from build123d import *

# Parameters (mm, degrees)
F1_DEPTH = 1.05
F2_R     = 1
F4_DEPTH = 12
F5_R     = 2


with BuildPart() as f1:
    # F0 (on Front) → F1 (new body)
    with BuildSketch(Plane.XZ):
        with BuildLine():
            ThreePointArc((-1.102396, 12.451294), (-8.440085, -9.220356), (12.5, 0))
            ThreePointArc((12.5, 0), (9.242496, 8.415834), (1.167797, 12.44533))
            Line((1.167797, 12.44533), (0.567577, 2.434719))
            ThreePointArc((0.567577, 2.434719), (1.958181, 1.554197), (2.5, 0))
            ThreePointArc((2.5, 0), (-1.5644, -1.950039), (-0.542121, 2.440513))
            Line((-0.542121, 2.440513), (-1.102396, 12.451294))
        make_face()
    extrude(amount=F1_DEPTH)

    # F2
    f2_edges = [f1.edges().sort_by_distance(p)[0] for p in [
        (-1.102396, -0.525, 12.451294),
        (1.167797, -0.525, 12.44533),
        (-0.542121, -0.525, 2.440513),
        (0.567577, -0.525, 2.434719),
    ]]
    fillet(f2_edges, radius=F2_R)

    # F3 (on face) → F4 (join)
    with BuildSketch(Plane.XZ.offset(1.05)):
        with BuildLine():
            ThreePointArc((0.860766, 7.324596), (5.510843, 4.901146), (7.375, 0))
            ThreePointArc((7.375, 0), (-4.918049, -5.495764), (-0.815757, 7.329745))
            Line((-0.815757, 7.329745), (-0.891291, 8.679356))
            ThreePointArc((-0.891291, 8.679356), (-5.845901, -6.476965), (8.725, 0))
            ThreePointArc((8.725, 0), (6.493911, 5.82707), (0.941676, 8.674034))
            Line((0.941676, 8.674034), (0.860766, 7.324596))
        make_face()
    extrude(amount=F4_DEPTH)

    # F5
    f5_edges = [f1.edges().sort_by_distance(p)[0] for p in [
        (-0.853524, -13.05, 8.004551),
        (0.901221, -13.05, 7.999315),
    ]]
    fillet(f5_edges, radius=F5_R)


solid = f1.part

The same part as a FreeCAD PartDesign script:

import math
import FreeCAD as App
import Part
import Sketcher
from FreeCAD import Vector
Q = App.Units.Quantity


def edges_at(feature, points):
    """Names of the edges that pass closest to the given points."""
    edges = feature.Shape.Edges
    near = lambda p: min(range(len(edges)), key=lambda i: edges[i].distToShape(Part.Vertex(*p))[0])
    return sorted({f"Edge{near(p) + 1}" for p in points})

doc = App.newDocument("Part")
body = doc.addObject("PartDesign::Body", "Body")

sketch1 = body.newObject("Sketcher::SketchObject", "Sketch")
sketch1.AttachmentSupport = (doc.getObject("XZ_Plane"), [""])
sketch1.MapMode = "FlatFace"
sketch1.addGeometry([
    Part.ArcOfCircle(Part.Circle(Vector(0, 0, 0), Vector(0, 0, 1), 12.5), math.radians(95), math.radians(360)),
    Part.ArcOfCircle(Part.Circle(Vector(0, 0, 0), Vector(0, 0, 1), 12.5), math.radians(0), math.radians(85)),
    Part.LineSegment(Vector(1.2, 12.4, 0), Vector(0.6, 2.4, 0)),
    Part.ArcOfCircle(Part.Circle(Vector(0, 0, 0), Vector(0, 0, 1), 2.5), math.radians(0), math.radians(77)),
    Part.ArcOfCircle(Part.Circle(Vector(0, 0, 0), Vector(0, 0, 1), 2.5), math.radians(103), math.radians(360)),
    Part.LineSegment(Vector(-0.5, 2.4, 0), Vector(-1.1, 12.5, 0)),
], False)
sketch1.addConstraint([
    Sketcher.Constraint("Tangent", 0, 2, 1, 1),
    Sketcher.Constraint("Coincident", 1, 2, 2, 1),
    Sketcher.Constraint("Coincident", 2, 2, 3, 2),
    Sketcher.Constraint("Tangent", 3, 1, 4, 2),
    Sketcher.Constraint("Coincident", 4, 1, 5, 1),
    Sketcher.Constraint("Coincident", 5, 2, 0, 1),
    Sketcher.Constraint("Coincident", 0, 3, -1, 1),
    Sketcher.Constraint("Coincident", 3, 3, -1, 1),
    Sketcher.Constraint("Equal", 0, 1),
    Sketcher.Constraint("Equal", 3, 4),
    Sketcher.Constraint("PointOnObject", 0, 2, -1),
    Sketcher.Constraint("PointOnObject", 3, 1, -1),
    Sketcher.Constraint("Radius", 0, Q("12.5 mm")),
    Sketcher.Constraint("Radius", 3, Q("2.499999 mm")),
    Sketcher.Constraint("Distance", 2, Q("10.028589 mm")),
    Sketcher.Constraint("DistanceY", -1, 1, 1, 2, Q("12.44533 mm")),
    Sketcher.Constraint("DistanceX", 4, 1, -1, 1, Q("0.542121 mm")),
    Sketcher.Constraint("DistanceY", 4, 1, 5, 2, Q("10.010781 mm")),
])
pad1 = body.newObject("PartDesign::Pad", "Pad")
pad1.Profile = sketch1
pad1.Length = 1.05
doc.recompute()

fillet = body.newObject("PartDesign::Fillet", "Fillet")
fillet.Base = (pad1, edges_at(pad1, [
    (-1.102, -0.525, 12.451),
    (1.168, -0.525, 12.445),
    (-0.542, -0.525, 2.441),
    (0.568, -0.525, 2.435),
]))
fillet.Radius = 1

sketch2 = body.newObject("Sketcher::SketchObject", "Sketch001")
sketch2.AttachmentSupport = (doc.getObject("XZ_Plane"), [""])
sketch2.MapMode = "FlatFace"
sketch2.AttachmentOffset = App.Placement(Vector(0, 0, 1.05), App.Rotation())
sketch2.addGeometry([
    Part.ArcOfCircle(Part.Circle(Vector(0, 0, 0), Vector(0, 0, 1), 7.4), math.radians(0), math.radians(83)),
    Part.ArcOfCircle(Part.Circle(Vector(0, 0, 0), Vector(0, 0, 1), 7.4), math.radians(96), math.radians(360)),
    Part.LineSegment(Vector(-0.8, 7.3, 0), Vector(-0.9, 8.7, 0)),
    Part.ArcOfCircle(Part.Circle(Vector(0, 0, 0), Vector(0, 0, 1), 8.7), math.radians(96), math.radians(360)),
    Part.ArcOfCircle(Part.Circle(Vector(0, 0, 0), Vector(0, 0, 1), 8.7), math.radians(0), math.radians(84)),
    Part.LineSegment(Vector(0.9, 8.7, 0), Vector(0.9, 7.3, 0)),
], False)
sketch2.addConstraint([
    Sketcher.Constraint("Tangent", 0, 1, 1, 2),
    Sketcher.Constraint("Coincident", 1, 1, 2, 1),
    Sketcher.Constraint("Coincident", 2, 2, 3, 1),
    Sketcher.Constraint("Tangent", 3, 2, 4, 1),
    Sketcher.Constraint("Coincident", 4, 2, 5, 1),
    Sketcher.Constraint("Coincident", 5, 2, 0, 2),
    Sketcher.Constraint("Coincident", 0, 3, -1, 1),
    Sketcher.Constraint("Coincident", 3, 3, -1, 1),
    Sketcher.Constraint("Equal", 0, 1),
    Sketcher.Constraint("Equal", 3, 4),
    Sketcher.Constraint("PointOnObject", 0, 1, -1),
    Sketcher.Constraint("PointOnObject", 3, 2, -1),
    Sketcher.Constraint("Radius", 0, Q("7.375 mm")),
    Sketcher.Constraint("Radius", 3, Q("8.725 mm")),
    Sketcher.Constraint("Distance", 5, Q("1.351861 mm")),
    Sketcher.Constraint("DistanceX", 2, 2, -1, 1, Q("0.891291 mm")),
    Sketcher.Constraint("DistanceY", 1, 1, 2, 2, Q("1.349611 mm")),
    Sketcher.Constraint("DistanceY", 1, 1, 4, 2, Q("1.344289 mm")),
])
pad2 = body.newObject("PartDesign::Pad", "Pad001")
pad2.Profile = sketch2
pad2.Length = 12
doc.recompute()

fillet2 = body.newObject("PartDesign::Fillet", "Fillet001")
fillet2.Base = (pad2, edges_at(pad2, [(-0.854, -13.05, 8.005), (0.901, -13.05, 7.999)]))
fillet2.Radius = 2

doc.recompute()
